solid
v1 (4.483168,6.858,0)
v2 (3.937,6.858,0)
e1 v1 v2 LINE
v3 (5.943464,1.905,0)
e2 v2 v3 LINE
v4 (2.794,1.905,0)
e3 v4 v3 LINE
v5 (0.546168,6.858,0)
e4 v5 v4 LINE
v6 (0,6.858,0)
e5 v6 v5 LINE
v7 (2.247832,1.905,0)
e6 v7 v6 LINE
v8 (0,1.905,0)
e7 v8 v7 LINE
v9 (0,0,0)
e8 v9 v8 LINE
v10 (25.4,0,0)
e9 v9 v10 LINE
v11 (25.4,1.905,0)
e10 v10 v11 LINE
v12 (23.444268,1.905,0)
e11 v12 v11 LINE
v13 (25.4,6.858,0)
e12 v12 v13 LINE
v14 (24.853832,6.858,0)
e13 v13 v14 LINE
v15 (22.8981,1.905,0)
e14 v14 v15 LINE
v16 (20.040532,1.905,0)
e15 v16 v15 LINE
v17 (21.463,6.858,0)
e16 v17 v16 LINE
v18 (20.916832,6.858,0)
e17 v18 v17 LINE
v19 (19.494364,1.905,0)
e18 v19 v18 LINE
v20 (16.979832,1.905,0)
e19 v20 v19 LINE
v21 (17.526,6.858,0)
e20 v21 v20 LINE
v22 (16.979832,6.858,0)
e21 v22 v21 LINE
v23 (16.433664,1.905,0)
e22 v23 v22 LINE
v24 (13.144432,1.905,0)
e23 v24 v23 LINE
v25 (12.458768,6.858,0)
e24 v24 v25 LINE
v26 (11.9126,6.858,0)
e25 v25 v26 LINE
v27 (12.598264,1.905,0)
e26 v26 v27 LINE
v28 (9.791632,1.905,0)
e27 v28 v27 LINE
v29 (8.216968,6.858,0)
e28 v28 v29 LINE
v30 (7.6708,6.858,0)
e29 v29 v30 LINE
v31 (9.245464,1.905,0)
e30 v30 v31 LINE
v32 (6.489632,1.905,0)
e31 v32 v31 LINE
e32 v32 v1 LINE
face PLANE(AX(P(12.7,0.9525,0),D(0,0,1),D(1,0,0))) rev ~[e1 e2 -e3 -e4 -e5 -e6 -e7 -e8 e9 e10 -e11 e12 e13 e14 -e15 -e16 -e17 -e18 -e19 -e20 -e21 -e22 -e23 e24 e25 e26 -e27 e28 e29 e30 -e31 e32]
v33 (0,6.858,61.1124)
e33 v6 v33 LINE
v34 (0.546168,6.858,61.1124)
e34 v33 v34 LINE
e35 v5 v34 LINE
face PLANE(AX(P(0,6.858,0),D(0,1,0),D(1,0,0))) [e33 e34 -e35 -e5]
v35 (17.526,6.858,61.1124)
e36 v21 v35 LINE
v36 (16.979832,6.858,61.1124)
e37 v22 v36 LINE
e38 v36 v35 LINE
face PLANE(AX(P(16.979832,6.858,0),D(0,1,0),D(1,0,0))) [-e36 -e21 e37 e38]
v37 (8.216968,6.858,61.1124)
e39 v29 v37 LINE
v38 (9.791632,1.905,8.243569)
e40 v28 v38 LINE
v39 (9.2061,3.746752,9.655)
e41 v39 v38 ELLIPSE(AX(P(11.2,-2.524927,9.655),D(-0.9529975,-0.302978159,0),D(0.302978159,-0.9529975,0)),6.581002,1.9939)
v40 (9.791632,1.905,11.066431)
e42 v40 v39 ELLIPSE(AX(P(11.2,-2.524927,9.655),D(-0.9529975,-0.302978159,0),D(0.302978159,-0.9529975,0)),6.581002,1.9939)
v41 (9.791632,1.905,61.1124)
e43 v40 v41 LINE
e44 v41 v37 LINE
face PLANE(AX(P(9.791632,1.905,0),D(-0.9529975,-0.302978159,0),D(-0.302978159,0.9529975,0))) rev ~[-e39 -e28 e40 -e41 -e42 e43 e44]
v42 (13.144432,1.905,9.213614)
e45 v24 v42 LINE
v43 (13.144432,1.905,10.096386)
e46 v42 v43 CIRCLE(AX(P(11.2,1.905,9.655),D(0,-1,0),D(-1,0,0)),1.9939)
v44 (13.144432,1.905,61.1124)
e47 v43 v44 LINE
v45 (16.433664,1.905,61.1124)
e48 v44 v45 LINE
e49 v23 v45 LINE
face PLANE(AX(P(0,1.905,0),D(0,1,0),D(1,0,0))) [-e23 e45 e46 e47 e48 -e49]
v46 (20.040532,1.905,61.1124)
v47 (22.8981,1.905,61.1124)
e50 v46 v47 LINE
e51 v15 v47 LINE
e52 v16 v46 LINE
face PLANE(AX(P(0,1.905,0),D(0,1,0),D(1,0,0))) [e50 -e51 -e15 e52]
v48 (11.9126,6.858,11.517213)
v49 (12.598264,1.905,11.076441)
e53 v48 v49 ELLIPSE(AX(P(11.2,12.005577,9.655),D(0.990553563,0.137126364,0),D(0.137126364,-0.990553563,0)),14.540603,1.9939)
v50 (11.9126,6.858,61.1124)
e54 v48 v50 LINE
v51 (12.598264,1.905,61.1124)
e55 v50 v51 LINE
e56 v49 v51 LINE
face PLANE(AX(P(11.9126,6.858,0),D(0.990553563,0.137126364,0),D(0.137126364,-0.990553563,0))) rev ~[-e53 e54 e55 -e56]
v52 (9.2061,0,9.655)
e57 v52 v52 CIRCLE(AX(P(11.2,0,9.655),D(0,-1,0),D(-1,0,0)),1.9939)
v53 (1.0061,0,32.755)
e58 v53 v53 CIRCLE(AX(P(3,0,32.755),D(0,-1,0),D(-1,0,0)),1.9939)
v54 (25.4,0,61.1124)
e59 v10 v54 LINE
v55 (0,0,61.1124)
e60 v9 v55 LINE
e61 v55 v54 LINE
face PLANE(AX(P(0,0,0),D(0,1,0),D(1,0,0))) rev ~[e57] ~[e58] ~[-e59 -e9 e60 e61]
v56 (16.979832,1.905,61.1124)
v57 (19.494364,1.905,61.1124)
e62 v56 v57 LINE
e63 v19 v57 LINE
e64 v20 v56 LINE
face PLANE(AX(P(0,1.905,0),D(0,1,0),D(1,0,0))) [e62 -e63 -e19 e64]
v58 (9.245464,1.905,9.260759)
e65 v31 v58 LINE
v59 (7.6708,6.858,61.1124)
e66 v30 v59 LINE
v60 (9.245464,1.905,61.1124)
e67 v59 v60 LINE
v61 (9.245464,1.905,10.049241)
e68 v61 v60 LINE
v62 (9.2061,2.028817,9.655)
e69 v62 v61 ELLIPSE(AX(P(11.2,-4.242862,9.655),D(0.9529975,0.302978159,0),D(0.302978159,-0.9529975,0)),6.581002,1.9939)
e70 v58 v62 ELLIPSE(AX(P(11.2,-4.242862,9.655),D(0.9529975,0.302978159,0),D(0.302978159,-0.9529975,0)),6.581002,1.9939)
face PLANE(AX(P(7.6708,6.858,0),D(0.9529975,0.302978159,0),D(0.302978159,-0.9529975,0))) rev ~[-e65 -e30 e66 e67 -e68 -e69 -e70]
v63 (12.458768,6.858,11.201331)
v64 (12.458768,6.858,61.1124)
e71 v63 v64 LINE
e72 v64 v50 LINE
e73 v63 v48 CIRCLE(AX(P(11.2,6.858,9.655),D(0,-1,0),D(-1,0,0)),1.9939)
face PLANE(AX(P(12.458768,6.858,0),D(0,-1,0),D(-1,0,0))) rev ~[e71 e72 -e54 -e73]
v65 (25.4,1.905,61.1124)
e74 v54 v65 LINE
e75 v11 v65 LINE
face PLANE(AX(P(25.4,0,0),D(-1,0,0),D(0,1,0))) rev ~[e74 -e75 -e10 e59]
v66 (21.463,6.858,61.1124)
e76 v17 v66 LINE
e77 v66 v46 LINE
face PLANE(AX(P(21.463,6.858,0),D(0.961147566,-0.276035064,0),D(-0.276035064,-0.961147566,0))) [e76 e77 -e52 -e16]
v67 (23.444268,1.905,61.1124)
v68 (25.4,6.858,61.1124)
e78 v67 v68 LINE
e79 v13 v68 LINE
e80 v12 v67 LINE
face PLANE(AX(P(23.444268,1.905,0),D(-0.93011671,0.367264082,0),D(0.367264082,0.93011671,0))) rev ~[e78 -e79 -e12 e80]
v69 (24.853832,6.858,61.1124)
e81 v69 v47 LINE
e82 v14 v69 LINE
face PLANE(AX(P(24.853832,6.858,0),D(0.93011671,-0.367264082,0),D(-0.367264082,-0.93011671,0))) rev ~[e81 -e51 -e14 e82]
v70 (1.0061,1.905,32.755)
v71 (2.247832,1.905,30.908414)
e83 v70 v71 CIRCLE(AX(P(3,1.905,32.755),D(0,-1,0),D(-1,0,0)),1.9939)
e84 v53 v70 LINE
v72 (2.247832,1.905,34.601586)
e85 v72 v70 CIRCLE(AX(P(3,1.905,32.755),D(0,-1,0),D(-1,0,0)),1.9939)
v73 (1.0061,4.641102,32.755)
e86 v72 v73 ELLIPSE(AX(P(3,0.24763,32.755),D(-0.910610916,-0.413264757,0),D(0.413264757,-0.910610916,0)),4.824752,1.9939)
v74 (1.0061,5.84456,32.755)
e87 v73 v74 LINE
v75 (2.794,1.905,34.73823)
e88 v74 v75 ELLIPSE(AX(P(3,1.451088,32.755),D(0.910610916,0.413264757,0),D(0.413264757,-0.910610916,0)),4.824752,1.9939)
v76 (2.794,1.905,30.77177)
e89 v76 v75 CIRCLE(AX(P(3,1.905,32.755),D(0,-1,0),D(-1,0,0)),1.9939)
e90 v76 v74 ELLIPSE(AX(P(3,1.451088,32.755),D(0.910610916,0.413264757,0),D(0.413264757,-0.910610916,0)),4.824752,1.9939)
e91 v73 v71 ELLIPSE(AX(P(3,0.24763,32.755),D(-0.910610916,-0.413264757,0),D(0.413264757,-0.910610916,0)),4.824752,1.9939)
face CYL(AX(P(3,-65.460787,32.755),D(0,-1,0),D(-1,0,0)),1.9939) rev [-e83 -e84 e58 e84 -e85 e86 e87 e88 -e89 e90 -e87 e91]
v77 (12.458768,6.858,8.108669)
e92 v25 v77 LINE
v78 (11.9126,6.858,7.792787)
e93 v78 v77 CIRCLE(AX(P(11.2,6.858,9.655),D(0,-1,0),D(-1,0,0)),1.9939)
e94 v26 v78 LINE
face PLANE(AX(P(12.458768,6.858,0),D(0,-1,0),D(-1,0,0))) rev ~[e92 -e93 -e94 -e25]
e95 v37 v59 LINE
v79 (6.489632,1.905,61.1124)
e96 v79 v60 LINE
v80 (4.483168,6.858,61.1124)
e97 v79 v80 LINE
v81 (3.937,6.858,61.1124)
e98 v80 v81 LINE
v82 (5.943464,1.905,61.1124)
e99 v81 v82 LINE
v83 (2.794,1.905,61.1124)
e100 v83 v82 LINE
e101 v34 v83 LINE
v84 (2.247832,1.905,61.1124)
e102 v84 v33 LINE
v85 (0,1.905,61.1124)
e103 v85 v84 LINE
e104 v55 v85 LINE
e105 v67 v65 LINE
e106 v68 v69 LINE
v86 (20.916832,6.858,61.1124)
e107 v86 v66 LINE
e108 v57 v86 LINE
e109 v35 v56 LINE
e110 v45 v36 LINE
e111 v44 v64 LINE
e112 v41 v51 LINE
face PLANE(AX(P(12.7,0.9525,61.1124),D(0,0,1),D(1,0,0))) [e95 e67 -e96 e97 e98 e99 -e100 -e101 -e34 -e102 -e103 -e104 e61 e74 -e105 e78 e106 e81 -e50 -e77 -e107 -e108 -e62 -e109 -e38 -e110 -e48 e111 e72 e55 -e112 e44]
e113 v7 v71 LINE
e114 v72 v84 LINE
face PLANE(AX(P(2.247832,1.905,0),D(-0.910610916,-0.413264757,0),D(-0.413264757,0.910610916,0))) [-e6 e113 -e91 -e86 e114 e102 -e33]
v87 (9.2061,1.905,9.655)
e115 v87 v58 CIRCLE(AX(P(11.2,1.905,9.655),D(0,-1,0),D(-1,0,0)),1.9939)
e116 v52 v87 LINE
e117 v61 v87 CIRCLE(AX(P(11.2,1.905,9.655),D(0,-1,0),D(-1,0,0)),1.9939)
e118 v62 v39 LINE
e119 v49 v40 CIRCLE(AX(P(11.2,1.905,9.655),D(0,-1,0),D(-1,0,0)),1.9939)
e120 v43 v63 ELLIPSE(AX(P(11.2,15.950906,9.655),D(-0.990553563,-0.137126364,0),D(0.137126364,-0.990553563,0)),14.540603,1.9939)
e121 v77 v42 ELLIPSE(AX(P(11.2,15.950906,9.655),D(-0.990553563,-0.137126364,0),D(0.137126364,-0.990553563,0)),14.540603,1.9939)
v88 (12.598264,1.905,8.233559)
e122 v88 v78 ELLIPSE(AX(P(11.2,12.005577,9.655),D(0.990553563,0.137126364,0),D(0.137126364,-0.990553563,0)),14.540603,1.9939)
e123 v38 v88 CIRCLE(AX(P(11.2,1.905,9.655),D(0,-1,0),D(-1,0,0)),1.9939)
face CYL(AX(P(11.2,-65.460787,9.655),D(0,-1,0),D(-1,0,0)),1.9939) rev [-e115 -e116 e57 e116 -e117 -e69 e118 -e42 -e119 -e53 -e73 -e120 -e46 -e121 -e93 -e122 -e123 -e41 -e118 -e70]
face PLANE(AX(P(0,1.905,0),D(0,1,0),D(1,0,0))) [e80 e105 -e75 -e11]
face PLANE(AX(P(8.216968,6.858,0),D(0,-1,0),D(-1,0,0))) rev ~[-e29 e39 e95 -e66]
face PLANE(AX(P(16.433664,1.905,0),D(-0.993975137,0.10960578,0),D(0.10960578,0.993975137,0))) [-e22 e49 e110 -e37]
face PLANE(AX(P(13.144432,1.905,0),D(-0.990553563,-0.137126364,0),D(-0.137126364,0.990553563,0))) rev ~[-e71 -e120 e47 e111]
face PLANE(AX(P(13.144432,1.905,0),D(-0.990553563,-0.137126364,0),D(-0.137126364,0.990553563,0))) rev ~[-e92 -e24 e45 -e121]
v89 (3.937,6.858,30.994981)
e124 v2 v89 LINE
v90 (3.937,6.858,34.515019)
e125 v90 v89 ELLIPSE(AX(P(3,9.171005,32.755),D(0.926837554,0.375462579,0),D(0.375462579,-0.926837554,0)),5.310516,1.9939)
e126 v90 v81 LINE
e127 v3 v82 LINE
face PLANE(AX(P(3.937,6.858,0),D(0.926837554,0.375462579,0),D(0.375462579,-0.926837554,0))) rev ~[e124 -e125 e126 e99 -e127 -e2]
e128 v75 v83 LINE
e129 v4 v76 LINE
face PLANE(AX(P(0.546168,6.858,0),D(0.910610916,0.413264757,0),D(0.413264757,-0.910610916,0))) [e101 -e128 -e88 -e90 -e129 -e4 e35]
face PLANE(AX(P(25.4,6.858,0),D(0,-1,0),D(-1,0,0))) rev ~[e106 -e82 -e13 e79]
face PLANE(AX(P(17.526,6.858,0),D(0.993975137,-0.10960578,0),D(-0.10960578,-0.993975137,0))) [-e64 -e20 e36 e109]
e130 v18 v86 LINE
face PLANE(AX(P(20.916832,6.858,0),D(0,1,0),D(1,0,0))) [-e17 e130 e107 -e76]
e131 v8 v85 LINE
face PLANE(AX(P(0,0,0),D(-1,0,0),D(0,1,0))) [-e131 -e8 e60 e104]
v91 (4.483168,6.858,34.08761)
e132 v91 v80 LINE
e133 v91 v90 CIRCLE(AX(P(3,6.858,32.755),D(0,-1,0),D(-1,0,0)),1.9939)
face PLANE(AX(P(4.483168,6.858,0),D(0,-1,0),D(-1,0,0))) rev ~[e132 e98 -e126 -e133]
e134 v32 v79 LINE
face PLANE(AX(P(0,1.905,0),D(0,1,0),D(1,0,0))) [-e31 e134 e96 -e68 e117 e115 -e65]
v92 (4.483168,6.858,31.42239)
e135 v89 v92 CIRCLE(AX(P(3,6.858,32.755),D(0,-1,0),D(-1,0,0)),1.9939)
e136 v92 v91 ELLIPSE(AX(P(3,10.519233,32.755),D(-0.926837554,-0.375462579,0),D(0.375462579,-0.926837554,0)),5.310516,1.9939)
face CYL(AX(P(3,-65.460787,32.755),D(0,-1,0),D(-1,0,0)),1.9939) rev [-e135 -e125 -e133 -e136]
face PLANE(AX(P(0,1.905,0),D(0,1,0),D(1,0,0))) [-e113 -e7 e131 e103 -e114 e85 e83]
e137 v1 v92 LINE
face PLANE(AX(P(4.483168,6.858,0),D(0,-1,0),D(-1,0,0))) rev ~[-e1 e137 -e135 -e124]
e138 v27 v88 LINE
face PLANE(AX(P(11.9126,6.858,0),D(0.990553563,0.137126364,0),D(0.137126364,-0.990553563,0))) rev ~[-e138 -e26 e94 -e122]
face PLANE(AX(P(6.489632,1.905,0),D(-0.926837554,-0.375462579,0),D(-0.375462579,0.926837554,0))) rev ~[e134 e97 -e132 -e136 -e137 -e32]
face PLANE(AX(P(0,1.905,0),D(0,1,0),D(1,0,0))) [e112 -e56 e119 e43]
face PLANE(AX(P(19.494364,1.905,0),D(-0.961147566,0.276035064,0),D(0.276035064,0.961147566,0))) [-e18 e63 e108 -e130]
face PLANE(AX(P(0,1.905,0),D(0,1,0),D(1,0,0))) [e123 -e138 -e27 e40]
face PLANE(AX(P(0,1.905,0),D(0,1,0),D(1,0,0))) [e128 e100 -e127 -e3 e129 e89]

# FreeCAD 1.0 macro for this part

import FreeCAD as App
import Part
import Sketcher
Q = App.Units.Quantity

doc = App.newDocument("Part")
body = doc.addObject("PartDesign::Body", "Body")

sketch1 = body.newObject("Sketcher::SketchObject", "Sketch")
sketch1.AttachmentSupport = (doc.getObject("XY_Plane"), [""])
sketch1.MapMode = "FlatFace"
sketch1.addGeometry([
    Part.LineSegment(App.Vector(0, 1.905, 0), App.Vector(0, 0, 0)),
    Part.LineSegment(App.Vector(0, 0, 0), App.Vector(25.4, 0, 0)),
    Part.LineSegment(App.Vector(25.4, 0, 0), App.Vector(25.4, 1.905, 0)),
    Part.LineSegment(App.Vector(25.4, 1.905, 0), App.Vector(0, 1.905, 0)),
], False)
sketch1.addConstraint([
    Sketcher.Constraint("Coincident", 0, 2, 1, 1),
    Sketcher.Constraint("Coincident", 1, 2, 2, 1),
    Sketcher.Constraint("Coincident", 2, 2, 3, 1),
    Sketcher.Constraint("Coincident", 3, 2, 0, 1),
    Sketcher.Constraint("Vertical", 0),
    Sketcher.Constraint("Horizontal", 1),
    Sketcher.Constraint("Vertical", 2),
    Sketcher.Constraint("Horizontal", 3),
    Sketcher.Constraint("Coincident", 0, 2, -1, 1),
    Sketcher.Constraint("DistanceX", 1, 1, 1, 2, Q("1 in")),
    Sketcher.Constraint("DistanceY", 0, 2, 0, 1, Q("0.075 in")),
])
pad1 = body.newObject("PartDesign::Pad", "Pad")
pad1.Profile = sketch1
pad1.Length = Q("2.406 in")

sketch2 = body.newObject("Sketcher::SketchObject", "Sketch001")
sketch2.AttachmentSupport = (doc.getObject("XY_Plane"), [""])
sketch2.MapMode = "FlatFace"
sketch2.addGeometry([
    Part.LineSegment(App.Vector(25.4, 6.858, 0), App.Vector(23.444268, 1.905, 0)),
    Part.LineSegment(App.Vector(23.444268, 1.905, 0), App.Vector(22.8981, 1.905, 0)),
    Part.LineSegment(App.Vector(22.8981, 1.905, 0), App.Vector(24.853832, 6.858, 0)),
    Part.LineSegment(App.Vector(24.853832, 6.858, 0), App.Vector(25.4, 6.858, 0)),
    Part.LineSegment(App.Vector(20.040532, 1.905, 0), App.Vector(19.494364, 1.905, 0)),
    Part.LineSegment(App.Vector(19.494364, 1.905, 0), App.Vector(20.916832, 6.858, 0)),
    Part.LineSegment(App.Vector(20.916832, 6.858, 0), App.Vector(21.463, 6.858, 0)),
    Part.LineSegment(App.Vector(21.463, 6.858, 0), App.Vector(20.040532, 1.905, 0)),
    Part.LineSegment(App.Vector(16.979832, 1.905, 0), App.Vector(16.433664, 1.905, 0)),
    Part.LineSegment(App.Vector(16.433664, 1.905, 0), App.Vector(16.979832, 6.858, 0)),
    Part.LineSegment(App.Vector(16.979832, 6.858, 0), App.Vector(17.526, 6.858, 0)),
    Part.LineSegment(App.Vector(17.526, 6.858, 0), App.Vector(16.979832, 1.905, 0)),
    Part.LineSegment(App.Vector(2.794, 1.905, 0), App.Vector(2.247832, 1.905, 0)),
    Part.LineSegment(App.Vector(2.247832, 1.905, 0), App.Vector(0, 6.858, 0)),
    Part.LineSegment(App.Vector(0, 6.858, 0), App.Vector(0.546168, 6.858, 0)),
    Part.LineSegment(App.Vector(0.546168, 6.858, 0), App.Vector(2.794, 1.905, 0)),
    Part.LineSegment(App.Vector(11.9126, 6.858, 0), App.Vector(12.458768, 6.858, 0)),
    Part.LineSegment(App.Vector(12.458768, 6.858, 0), App.Vector(13.144432, 1.905, 0)),
    Part.LineSegment(App.Vector(13.144432, 1.905, 0), App.Vector(12.598264, 1.905, 0)),
    Part.LineSegment(App.Vector(12.598264, 1.905, 0), App.Vector(11.9126, 6.858, 0)),
    Part.LineSegment(App.Vector(7.6708, 6.858, 0), App.Vector(8.216968, 6.858, 0)),
    Part.LineSegment(App.Vector(8.216968, 6.858, 0), App.Vector(9.791632, 1.905, 0)),
    Part.LineSegment(App.Vector(9.791632, 1.905, 0), App.Vector(9.245464, 1.905, 0)),
    Part.LineSegment(App.Vector(9.245464, 1.905, 0), App.Vector(7.6708, 6.858, 0)),
    Part.LineSegment(App.Vector(3.937, 6.858, 0), App.Vector(4.483168, 6.858, 0)),
    Part.LineSegment(App.Vector(4.483168, 6.858, 0), App.Vector(6.489632, 1.905, 0)),
    Part.LineSegment(App.Vector(6.489632, 1.905, 0), App.Vector(5.943464, 1.905, 0)),
    Part.LineSegment(App.Vector(5.943464, 1.905, 0), App.Vector(3.937, 6.858, 0)),
], False)
sketch2.addConstraint([
    Sketcher.Constraint("Coincident", 0, 2, 1, 1),
    Sketcher.Constraint("Coincident", 1, 2, 2, 1),
    Sketcher.Constraint("Coincident", 2, 2, 3, 1),
    Sketcher.Constraint("Coincident", 3, 2, 0, 1),
    Sketcher.Constraint("Coincident", 4, 2, 5, 1),
    Sketcher.Constraint("Coincident", 5, 2, 6, 1),
    Sketcher.Constraint("Coincident", 6, 2, 7, 1),
    Sketcher.Constraint("Coincident", 7, 2, 4, 1),
    Sketcher.Constraint("Coincident", 8, 2, 9, 1),
    Sketcher.Constraint("Coincident", 9, 2, 10, 1),
    Sketcher.Constraint("Coincident", 10, 2, 11, 1),
    Sketcher.Constraint("Coincident", 11, 2, 8, 1),
    Sketcher.Constraint("Coincident", 12, 2, 13, 1),
    Sketcher.Constraint("Coincident", 13, 2, 14, 1),
    Sketcher.Constraint("Coincident", 14, 2, 15, 1),
    Sketcher.Constraint("Coincident", 15, 2, 12, 1),
    Sketcher.Constraint("Coincident", 16, 2, 17, 1),
    Sketcher.Constraint("Coincident", 17, 2, 18, 1),
    Sketcher.Constraint("Coincident", 18, 2, 19, 1),
    Sketcher.Constraint("Coincident", 19, 2, 16, 1),
    Sketcher.Constraint("Coincident", 20, 2, 21, 1),
    Sketcher.Constraint("Coincident", 21, 2, 22, 1),
    Sketcher.Constraint("Coincident", 22, 2, 23, 1),
    Sketcher.Constraint("Coincident", 23, 2, 20, 1),
    Sketcher.Constraint("Coincident", 24, 2, 25, 1),
    Sketcher.Constraint("Coincident", 25, 2, 26, 1),
    Sketcher.Constraint("Coincident", 26, 2, 27, 1),
    Sketcher.Constraint("Coincident", 27, 2, 24, 1),
    Sketcher.Constraint("Horizontal", 1),
    Sketcher.Constraint("Horizontal", 3),
    Sketcher.Constraint("Horizontal", 4),
    Sketcher.Constraint("Horizontal", 6),
    Sketcher.Constraint("Horizontal", 8),
    Sketcher.Constraint("Horizontal", 10),
    Sketcher.Constraint("Horizontal", 12),
    Sketcher.Constraint("Horizontal", 14),
    Sketcher.Constraint("Horizontal", 16),
    Sketcher.Constraint("Horizontal", 18),
    Sketcher.Constraint("Horizontal", 20),
    Sketcher.Constraint("Horizontal", 22),
    Sketcher.Constraint("Horizontal", 24),
    Sketcher.Constraint("Horizontal", 26),
    Sketcher.Constraint("PointOnObject", 13, 2, -2),
    Sketcher.Constraint("Parallel", 0, 2),
    Sketcher.Constraint("Parallel", 5, 7),
    Sketcher.Constraint("Parallel", 9, 11),
    Sketcher.Constraint("Parallel", 13, 15),
    Sketcher.Constraint("Parallel", 17, 19),
    Sketcher.Constraint("Parallel", 21, 23),
    Sketcher.Constraint("Parallel", 25, 27),
    Sketcher.Constraint("Horizontal", 1, 2, 4, 2),
    Sketcher.Constraint("Horizontal", 3, 2, 5, 2),
    Sketcher.Constraint("Horizontal", 7, 2, 8, 2),
    Sketcher.Constraint("Horizontal", 6, 2, 9, 2),
    Sketcher.Constraint("Horizontal", 11, 2, 12, 2),
    Sketcher.Constraint("Horizontal", 10, 2, 13, 2),
    Sketcher.Constraint("Horizontal", 14, 2, 16, 2),
    Sketcher.Constraint("Horizontal", 15, 2, 17, 2),
    Sketcher.Constraint("Horizontal", 19, 2, 20, 2),
    Sketcher.Constraint("Horizontal", 18, 2, 21, 2),
    Sketcher.Constraint("Horizontal", 23, 2, 24, 2),
    Sketcher.Constraint("Horizontal", 22, 2, 25, 2),
    Sketcher.Constraint("Vertical", 9, 2, 11, 2),
    Sketcher.Constraint("Equal", 3, 4),
    Sketcher.Constraint("Equal", 6, 8),
    Sketcher.Constraint("Equal", 10, 12),
    Sketcher.Constraint("Equal", 14, 16),
    Sketcher.Constraint("Equal", 18, 20),
    Sketcher.Constraint("Equal", 22, 24),
    Sketcher.Constraint("DistanceX", -1, 1, 3, 2, Q("1 in")),
    Sketcher.Constraint("DistanceY", -1, 1, 2, 2, Q("0.27 in")),
    Sketcher.Constraint("DistanceX", -1, 1, 10, 2, Q("0.69 in")),
    Sketcher.Constraint("DistanceX", -1, 1, 15, 2, Q("0.11 in")),
    Sketcher.Constraint("DistanceX", 25, 2, 21, 2, Q("0.13 in")),
    Sketcher.Constraint("DistanceY", -1, 1, 0, 2, Q("0.075 in")),
    Sketcher.Constraint("DistanceX", -1, 1, 6, 2, Q("0.845 in")),
    Sketcher.Constraint("DistanceX", -1, 1, 19, 2, Q("0.469 in")),
    Sketcher.Constraint("DistanceX", -1, 1, 23, 2, Q("0.302 in")),
    Sketcher.Constraint("DistanceX", -1, 1, 27, 2, Q("0.155 in")),
    Sketcher.Constraint("DistanceX", 17, 2, 11, 2, Q("0.151 in")),
    Sketcher.Constraint("DistanceX", 21, 2, 17, 2, Q("0.132 in")),
    Sketcher.Constraint("DistanceX", -1, 1, 1, 2, Q("0.9015 in")),
    Sketcher.Constraint("DistanceX", 7, 2, 5, 2, Q("0.0345 in")),
    Sketcher.Constraint("DistanceX", 1, 2, 1, 1, 0.546168),
])
pad2 = body.newObject("PartDesign::Pad", "Pad001")
pad2.Profile = sketch2
pad2.Length = Q("2.406 in")

sketch3 = body.newObject("Sketcher::SketchObject", "Sketch002")
sketch3.AttachmentSupport = (doc.getObject("XZ_Plane"), [""])
sketch3.MapMode = "FlatFace"
sketch3.AttachmentOffset = App.Placement(App.Vector(0, 0, -0.075 * 25.4), App.Rotation())
sketch3.addGeometry([
    Part.Circle(App.Vector(11.2, 9.655, 0), App.Vector(0, 0, 1), 1.9939),
    Part.Circle(App.Vector(3, 32.755, 0), App.Vector(0, 0, 1), 1.9939),
], False)
sketch3.addConstraint([
    Sketcher.Constraint("Equal", 0, 1),
    Sketcher.Constraint("Diameter", 0, Q("0.157 in")),
    Sketcher.Constraint("DistanceX", -1, 1, 0, 3, 11.2),
    Sketcher.Constraint("DistanceY", -1, 1, 0, 3, 9.655),
    Sketcher.Constraint("DistanceX", -1, 1, 1, 3, 3.0),
    Sketcher.Constraint("DistanceY", -1, 1, 1, 3, 32.755),
])
pocket1 = body.newObject("PartDesign::Pocket", "Pocket")
pocket1.Profile = sketch3
pocket1.Type = "ThroughAll"
pocket1.Midplane = True

doc.recompute()
